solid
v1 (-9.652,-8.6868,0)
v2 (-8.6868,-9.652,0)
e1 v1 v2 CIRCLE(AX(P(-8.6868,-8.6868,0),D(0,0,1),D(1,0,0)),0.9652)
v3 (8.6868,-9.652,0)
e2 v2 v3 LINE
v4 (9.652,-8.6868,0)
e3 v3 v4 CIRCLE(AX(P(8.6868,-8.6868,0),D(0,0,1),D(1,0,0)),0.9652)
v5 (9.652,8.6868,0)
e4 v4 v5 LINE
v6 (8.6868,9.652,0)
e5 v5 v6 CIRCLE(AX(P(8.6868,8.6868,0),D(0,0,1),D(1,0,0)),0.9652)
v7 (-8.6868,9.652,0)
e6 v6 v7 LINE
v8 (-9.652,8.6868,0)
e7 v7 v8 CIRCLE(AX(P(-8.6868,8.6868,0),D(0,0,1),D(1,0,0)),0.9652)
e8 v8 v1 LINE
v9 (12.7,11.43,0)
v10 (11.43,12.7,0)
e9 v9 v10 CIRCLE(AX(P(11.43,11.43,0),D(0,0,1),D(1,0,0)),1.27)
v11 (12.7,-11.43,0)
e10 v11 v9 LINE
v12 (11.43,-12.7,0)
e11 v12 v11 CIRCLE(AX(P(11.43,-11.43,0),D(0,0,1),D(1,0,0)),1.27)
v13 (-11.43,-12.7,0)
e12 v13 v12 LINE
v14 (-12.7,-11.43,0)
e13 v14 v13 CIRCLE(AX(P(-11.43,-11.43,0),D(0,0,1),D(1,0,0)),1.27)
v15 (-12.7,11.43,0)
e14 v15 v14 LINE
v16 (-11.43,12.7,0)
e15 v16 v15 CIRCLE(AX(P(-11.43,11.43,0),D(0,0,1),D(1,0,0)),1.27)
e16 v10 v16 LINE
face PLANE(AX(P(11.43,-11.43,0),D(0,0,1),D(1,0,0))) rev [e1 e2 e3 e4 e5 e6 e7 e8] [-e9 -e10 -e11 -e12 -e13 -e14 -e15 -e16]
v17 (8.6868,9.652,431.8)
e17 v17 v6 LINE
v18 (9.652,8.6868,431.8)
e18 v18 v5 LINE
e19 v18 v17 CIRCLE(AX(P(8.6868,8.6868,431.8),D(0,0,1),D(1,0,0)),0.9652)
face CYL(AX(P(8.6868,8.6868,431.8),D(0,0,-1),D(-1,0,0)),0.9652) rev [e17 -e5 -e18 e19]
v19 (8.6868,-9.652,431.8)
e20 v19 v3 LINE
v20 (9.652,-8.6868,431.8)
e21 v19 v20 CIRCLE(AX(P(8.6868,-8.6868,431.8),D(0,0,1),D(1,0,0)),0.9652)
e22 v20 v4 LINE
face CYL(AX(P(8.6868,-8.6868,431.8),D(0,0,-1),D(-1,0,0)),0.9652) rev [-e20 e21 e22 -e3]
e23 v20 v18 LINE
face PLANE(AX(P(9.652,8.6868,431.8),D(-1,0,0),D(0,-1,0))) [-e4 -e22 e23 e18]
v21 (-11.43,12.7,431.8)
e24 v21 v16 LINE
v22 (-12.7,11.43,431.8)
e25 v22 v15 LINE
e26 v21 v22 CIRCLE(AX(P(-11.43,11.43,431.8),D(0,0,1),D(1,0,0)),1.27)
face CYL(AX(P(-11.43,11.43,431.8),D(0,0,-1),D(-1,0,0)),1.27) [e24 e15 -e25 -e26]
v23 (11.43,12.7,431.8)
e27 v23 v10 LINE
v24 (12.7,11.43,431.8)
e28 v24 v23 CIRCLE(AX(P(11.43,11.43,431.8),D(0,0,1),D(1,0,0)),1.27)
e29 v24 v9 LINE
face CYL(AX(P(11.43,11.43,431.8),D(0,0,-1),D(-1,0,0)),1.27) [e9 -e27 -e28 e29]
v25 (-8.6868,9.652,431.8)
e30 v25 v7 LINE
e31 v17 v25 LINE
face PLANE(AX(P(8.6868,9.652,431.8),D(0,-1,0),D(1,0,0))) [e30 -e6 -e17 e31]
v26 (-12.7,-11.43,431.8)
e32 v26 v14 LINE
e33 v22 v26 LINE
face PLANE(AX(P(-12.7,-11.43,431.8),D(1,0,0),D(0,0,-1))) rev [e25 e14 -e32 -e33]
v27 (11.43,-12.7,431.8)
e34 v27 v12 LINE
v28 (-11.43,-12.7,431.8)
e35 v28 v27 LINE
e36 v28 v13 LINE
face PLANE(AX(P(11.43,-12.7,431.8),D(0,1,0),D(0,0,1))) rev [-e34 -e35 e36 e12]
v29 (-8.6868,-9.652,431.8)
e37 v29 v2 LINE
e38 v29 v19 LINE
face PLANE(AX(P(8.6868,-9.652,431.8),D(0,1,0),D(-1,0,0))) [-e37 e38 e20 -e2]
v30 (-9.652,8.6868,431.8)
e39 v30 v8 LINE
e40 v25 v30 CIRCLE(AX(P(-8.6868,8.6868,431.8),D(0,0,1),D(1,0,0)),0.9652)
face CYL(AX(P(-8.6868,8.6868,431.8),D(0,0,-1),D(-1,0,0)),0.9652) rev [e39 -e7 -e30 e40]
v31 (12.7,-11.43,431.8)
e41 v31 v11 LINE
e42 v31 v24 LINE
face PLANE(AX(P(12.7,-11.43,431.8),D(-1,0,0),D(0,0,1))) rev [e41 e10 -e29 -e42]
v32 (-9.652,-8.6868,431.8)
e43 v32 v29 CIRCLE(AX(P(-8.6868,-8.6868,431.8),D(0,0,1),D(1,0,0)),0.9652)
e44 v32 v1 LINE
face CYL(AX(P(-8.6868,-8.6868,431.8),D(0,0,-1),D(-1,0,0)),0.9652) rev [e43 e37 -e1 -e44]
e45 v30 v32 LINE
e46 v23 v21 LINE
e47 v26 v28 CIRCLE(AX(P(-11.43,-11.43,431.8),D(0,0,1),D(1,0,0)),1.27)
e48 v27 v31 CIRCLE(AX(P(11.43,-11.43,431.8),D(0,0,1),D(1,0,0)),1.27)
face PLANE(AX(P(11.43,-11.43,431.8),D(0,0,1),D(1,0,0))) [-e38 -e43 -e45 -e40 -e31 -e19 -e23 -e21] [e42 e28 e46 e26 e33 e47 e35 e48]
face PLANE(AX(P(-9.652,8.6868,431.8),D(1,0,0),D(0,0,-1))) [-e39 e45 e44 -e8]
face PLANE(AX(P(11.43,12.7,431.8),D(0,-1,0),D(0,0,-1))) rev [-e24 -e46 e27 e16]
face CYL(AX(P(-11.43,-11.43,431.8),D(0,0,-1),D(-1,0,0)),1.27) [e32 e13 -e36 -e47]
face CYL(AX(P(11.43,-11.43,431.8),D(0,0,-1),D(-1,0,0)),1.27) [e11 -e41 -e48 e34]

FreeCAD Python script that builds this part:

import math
import FreeCAD as App
import Part
import Sketcher

V = App.Vector
Q = App.Units.Quantity

doc = App.newDocument("Part")
body = doc.addObject("PartDesign::Body", "Body")

# Sketch on XY plane
sketch1 = body.newObject("Sketcher::SketchObject", "Sketch")
sketch1.AttachmentSupport = (doc.getObject("XY_Plane"), [""])
sketch1.MapMode = "FlatFace"
sketch1.addGeometry([
    Part.LineSegment(V(12.7, -11.43, 0), V(12.7, 11.43, 0)),  # 0
    Part.ArcOfCircle(Part.Circle(V(11.43, 11.43, 0), V(0, 0, 1), 1.27), math.radians(0), math.radians(90)),  # 1
    Part.LineSegment(V(11.43, 12.7, 0), V(-11.43, 12.7, 0)),  # 2
    Part.ArcOfCircle(Part.Circle(V(-11.43, 11.43, 0), V(0, 0, 1), 1.27), math.radians(90), math.radians(180)),  # 3
    Part.LineSegment(V(-12.7, 11.43, 0), V(-12.7, -11.43, 0)),  # 4
    Part.ArcOfCircle(Part.Circle(V(-11.43, -11.43, 0), V(0, 0, 1), 1.27), math.radians(180), math.radians(270)),  # 5
    Part.LineSegment(V(-11.43, -12.7, 0), V(11.43, -12.7, 0)),  # 6
    Part.ArcOfCircle(Part.Circle(V(11.43, -11.43, 0), V(0, 0, 1), 1.27), math.radians(-90), math.radians(0)),  # 7
    Part.ArcOfCircle(Part.Circle(V(8.6868, 8.6868, 0), V(0, 0, 1), 0.9652), math.radians(0), math.radians(90)),  # 8
    Part.LineSegment(V(9.652, 8.6868, 0), V(9.652, -8.6868, 0)),  # 9
    Part.ArcOfCircle(Part.Circle(V(8.6868, -8.6868, 0), V(0, 0, 1), 0.9652), math.radians(-90), math.radians(0)),  # 10
    Part.LineSegment(V(8.6868, -9.652, 0), V(-8.6868, -9.652, 0)),  # 11
    Part.ArcOfCircle(Part.Circle(V(-8.6868, -8.6868, 0), V(0, 0, 1), 0.9652), math.radians(-180), math.radians(-90)),  # 12
    Part.LineSegment(V(-9.652, -8.6868, 0), V(-9.652, 8.6868, 0)),  # 13
    Part.ArcOfCircle(Part.Circle(V(-8.6868, 8.6868, 0), V(0, 0, 1), 0.9652), math.radians(90), math.radians(180)),  # 14
    Part.LineSegment(V(-8.6868, 9.652, 0), V(8.6868, 9.652, 0)),  # 15
], False)
sketch1.addConstraint([
    Sketcher.Constraint("Tangent", 0, 2, 1, 1),
    Sketcher.Constraint("Tangent", 1, 2, 2, 1),
    Sketcher.Constraint("Tangent", 2, 2, 3, 1),
    Sketcher.Constraint("Tangent", 3, 2, 4, 1),
    Sketcher.Constraint("Tangent", 4, 2, 5, 1),
    Sketcher.Constraint("Tangent", 5, 2, 6, 1),
    Sketcher.Constraint("Tangent", 6, 2, 7, 1),
    Sketcher.Constraint("Tangent", 7, 2, 0, 1),
    Sketcher.Constraint("Tangent", 8, 1, 9, 1),
    Sketcher.Constraint("Tangent", 9, 2, 10, 2),
    Sketcher.Constraint("Tangent", 10, 1, 11, 1),
    Sketcher.Constraint("Tangent", 11, 2, 12, 2),
    Sketcher.Constraint("Tangent", 12, 1, 13, 1),
    Sketcher.Constraint("Tangent", 13, 2, 14, 2),
    Sketcher.Constraint("Tangent", 14, 1, 15, 1),
    Sketcher.Constraint("Tangent", 15, 2, 8, 2),
    Sketcher.Constraint("Vertical", 0),
    Sketcher.Constraint("Horizontal", 2),
    Sketcher.Constraint("Vertical", 4),
    Sketcher.Constraint("Horizontal", 6),
    Sketcher.Constraint("Vertical", 9),
    Sketcher.Constraint("Horizontal", 11),
    Sketcher.Constraint("Vertical", 13),
    Sketcher.Constraint("Horizontal", 15),
    Sketcher.Constraint("Equal", 1, 3),
    Sketcher.Constraint("Equal", 3, 5),
    Sketcher.Constraint("Equal", 5, 7),
    Sketcher.Constraint("Equal", 8, 10),
    Sketcher.Constraint("Equal", 10, 12),
    Sketcher.Constraint("Equal", 12, 14),
    Sketcher.Constraint("Symmetric", 1, 3, 5, 3, -1, 1),
    Sketcher.Constraint("Symmetric", 8, 3, 12, 3, -1, 1),
    Sketcher.Constraint("Equal", 6, 0),
    Sketcher.Constraint("Equal", 15, 9),
    Sketcher.Constraint("Radius", 1, Q("0.05 in")),
    Sketcher.Constraint("DistanceX", 2, 2, 2, 1, Q("0.9 in")),
    Sketcher.Constraint("Radius", 8, Q("0.038 in")),
    Sketcher.Constraint("DistanceX", 11, 2, 11, 1, Q("0.684 in")),
])
pad1 = body.newObject("PartDesign::Pad", "Pad")
pad1.Profile = sketch1
pad1.Length = Q("17 in")

doc.recompute()
